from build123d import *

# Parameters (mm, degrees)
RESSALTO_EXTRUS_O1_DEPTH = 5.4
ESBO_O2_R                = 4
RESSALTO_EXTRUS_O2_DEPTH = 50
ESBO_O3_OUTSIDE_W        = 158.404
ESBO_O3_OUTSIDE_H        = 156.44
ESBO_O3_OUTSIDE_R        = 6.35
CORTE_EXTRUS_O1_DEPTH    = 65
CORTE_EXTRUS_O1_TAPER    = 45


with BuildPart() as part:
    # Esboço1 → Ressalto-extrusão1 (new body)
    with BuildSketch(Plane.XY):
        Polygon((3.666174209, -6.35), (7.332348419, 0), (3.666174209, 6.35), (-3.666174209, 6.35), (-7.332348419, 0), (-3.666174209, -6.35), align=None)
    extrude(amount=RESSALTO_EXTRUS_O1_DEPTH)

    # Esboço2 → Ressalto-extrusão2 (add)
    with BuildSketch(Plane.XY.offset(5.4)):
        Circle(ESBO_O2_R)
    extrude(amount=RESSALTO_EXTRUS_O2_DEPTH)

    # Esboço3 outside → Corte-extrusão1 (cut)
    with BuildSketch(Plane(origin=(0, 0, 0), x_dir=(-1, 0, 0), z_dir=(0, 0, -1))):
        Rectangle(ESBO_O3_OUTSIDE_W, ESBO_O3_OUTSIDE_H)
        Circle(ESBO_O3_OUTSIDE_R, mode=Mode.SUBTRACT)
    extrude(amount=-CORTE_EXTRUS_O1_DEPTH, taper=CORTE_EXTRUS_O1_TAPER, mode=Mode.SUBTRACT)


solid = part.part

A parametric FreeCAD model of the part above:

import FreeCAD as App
import Part
import Sketcher

V = App.Vector
Q = App.Units.Quantity


def add_polygon(sketch, points):
    """Adds a closed chain of lines whose ends are joined by coincident constraints."""
    first, n = sketch.GeometryCount, len(points)
    for a, b in zip(points, points[1:] + points[:1]):
        sketch.addGeometry(Part.LineSegment(App.Vector(*a, 0), App.Vector(*b, 0)), False)
    for i in range(n):
        sketch.addConstraint(Sketcher.Constraint("Coincident", first + i, 2, first + (i + 1) % n, 1))

doc = App.newDocument("Part")
body = doc.addObject("PartDesign::Body", "Body")

# Sketch on XY plane
sketch1 = body.newObject("Sketcher::SketchObject", "Sketch")
sketch1.AttachmentSupport = (doc.getObject("XY_Plane"), [""])
sketch1.MapMode = "FlatFace"
add_polygon(sketch1, [(4, -6), (7, 0), (4, 6), (-4, 6), (-7, 0), (-4, -6)])  # lines 0-5
sketch1.addConstraint([
    Sketcher.Constraint("Horizontal", 2),
    Sketcher.Constraint("Horizontal", 5),
    Sketcher.Constraint("Symmetric", 0, 2, 3, 2, -1, 1),
    Sketcher.Constraint("Symmetric", 1, 2, 4, 2, -1, 1),
    Sketcher.Constraint("PointOnObject", 0, 2, -1),
    Sketcher.Constraint("Parallel", 0, 3),
    Sketcher.Constraint("Vertical", 2, 2, 4, 2),
    Sketcher.Constraint("Angle", 0, Q("60 deg")),
    Sketcher.Constraint("DistanceY", 4, 2, 2, 2, Q("12.7 mm")),
    Sketcher.Constraint("DistanceX", 2, 2, 2, 1, Q("7.332348 mm")),
])
pad1 = body.newObject("PartDesign::Pad", "Pad")
pad1.Profile = sketch1
pad1.Length = 5.4

# Sketch on XY plane
sketch2 = body.newObject("Sketcher::SketchObject", "Sketch001")
sketch2.AttachmentSupport = (doc.getObject("XY_Plane"), [""])
sketch2.MapMode = "FlatFace"
sketch2.AttachmentOffset = App.Placement(V(0, 0, 5.4), App.Rotation())
sketch2.addGeometry(Part.Circle(V(0, 0, 0), V(0, 0, 1), 4), False)
sketch2.addConstraint([
    Sketcher.Constraint("Coincident", 0, 3, -1, 1),
    Sketcher.Constraint("Diameter", 0, Q("8 mm")),
])
pad2 = body.newObject("PartDesign::Pad", "Pad001")
pad2.Profile = sketch2
pad2.Length = 50

# Sketch on XY plane
sketch3 = body.newObject("Sketcher::SketchObject", "Sketch002")
sketch3.AttachmentSupport = (doc.getObject("XY_Plane"), [""])
sketch3.MapMode = "FlatFace"
add_polygon(sketch3, [(79, 78), (79, -78), (-79, -78), (-79, 78)])  # lines 0-3
sketch3.addGeometry(Part.Circle(V(0, 0, 0), V(0, 0, 1), 6), False)  # 4
sketch3.addConstraint([
    Sketcher.Constraint("Vertical", 0),
    Sketcher.Constraint("Horizontal", 1),
    Sketcher.Constraint("Vertical", 2),
    Sketcher.Constraint("Horizontal", 3),
    Sketcher.Constraint("Coincident", 4, 3, -1, 1),
    Sketcher.Constraint("Symmetric", 0, 2, 2, 2, -1, 1),
    Sketcher.Constraint("Diameter", 4, Q("12.7 mm")),
    Sketcher.Constraint("DistanceY", 0, 2, 0, 1, Q("156.44 mm")),
    Sketcher.Constraint("DistanceX", 1, 2, 1, 1, Q("158.404 mm")),
])
pocket1 = body.newObject("PartDesign::Pocket", "Pocket")
pocket1.Profile = sketch3
pocket1.Length = 65
pocket1.Reversed = True
pocket1.TaperAngle = 45

doc.recompute()
